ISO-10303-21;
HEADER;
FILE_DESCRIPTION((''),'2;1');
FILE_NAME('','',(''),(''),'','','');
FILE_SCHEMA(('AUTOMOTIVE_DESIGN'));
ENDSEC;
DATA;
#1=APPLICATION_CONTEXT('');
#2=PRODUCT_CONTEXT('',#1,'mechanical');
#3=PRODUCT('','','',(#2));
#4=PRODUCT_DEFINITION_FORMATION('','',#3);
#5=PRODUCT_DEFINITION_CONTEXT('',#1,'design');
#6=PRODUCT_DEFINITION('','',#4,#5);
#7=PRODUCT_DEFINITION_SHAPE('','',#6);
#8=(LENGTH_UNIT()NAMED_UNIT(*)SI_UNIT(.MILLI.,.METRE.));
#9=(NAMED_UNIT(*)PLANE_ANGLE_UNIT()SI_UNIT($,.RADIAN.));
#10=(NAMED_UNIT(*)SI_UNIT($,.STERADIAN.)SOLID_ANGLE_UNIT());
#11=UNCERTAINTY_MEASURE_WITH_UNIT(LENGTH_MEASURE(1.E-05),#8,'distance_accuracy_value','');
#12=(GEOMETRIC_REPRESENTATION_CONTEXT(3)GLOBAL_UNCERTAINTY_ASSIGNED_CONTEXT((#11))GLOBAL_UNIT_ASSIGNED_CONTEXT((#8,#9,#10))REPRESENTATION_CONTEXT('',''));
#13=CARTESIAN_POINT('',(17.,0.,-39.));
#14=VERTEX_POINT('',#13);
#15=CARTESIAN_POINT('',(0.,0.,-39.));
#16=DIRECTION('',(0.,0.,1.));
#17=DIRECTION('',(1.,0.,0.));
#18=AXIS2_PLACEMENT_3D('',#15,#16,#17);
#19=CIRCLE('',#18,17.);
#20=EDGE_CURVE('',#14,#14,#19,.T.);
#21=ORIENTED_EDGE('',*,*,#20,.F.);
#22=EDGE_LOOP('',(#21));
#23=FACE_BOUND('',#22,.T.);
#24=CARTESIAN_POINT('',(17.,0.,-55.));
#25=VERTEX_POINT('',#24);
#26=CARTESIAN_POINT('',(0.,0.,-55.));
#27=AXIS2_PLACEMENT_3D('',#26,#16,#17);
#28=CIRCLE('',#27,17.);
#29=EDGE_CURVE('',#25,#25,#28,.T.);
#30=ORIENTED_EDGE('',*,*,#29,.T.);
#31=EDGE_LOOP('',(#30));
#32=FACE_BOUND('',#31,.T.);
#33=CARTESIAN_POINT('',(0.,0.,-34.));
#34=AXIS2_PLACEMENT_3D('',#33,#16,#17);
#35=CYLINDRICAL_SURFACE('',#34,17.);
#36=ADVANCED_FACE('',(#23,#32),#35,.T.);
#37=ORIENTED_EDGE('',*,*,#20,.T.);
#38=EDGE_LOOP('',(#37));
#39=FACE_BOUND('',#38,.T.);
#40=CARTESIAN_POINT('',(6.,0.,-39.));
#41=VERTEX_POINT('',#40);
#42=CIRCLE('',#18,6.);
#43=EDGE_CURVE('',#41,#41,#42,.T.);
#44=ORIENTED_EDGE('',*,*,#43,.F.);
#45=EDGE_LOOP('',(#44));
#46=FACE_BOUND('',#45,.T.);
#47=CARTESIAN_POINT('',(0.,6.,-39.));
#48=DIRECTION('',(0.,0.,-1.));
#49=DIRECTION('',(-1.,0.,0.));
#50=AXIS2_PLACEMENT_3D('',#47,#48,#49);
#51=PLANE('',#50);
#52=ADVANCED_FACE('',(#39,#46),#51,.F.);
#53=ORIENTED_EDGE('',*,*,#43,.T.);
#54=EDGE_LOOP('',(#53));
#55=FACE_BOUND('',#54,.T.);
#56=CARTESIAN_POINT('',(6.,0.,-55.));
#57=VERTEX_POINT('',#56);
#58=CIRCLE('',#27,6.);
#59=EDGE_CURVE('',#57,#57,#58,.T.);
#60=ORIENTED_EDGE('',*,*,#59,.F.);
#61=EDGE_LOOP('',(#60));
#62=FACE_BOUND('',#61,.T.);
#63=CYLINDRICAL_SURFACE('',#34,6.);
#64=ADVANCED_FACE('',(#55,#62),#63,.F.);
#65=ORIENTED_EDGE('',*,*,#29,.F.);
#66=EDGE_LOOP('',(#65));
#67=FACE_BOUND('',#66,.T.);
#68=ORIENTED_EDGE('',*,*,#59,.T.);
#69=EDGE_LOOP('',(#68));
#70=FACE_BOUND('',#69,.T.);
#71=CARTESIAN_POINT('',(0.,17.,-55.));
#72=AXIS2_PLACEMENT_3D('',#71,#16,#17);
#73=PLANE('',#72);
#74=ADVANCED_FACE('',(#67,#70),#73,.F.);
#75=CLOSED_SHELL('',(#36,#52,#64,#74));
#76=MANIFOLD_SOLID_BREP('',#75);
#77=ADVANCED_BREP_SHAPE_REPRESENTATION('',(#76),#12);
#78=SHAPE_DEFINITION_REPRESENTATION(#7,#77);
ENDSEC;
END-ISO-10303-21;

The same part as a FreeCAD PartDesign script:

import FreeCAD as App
import Part
import Sketcher

doc = App.newDocument("Part")
body = doc.addObject("PartDesign::Body", "Body")

# Sketch on YZ plane
sketch1 = body.newObject("Sketcher::SketchObject", "Sketch")
sketch1.AttachmentSupport = (doc.getObject("YZ_Plane"), [""])
sketch1.MapMode = "FlatFace"
sketch1.addGeometry([
    Part.LineSegment(App.Vector(17, -39, 0), App.Vector(6, -39, 0)),
    Part.LineSegment(App.Vector(6, -39, 0), App.Vector(6, -55, 0)),
    Part.LineSegment(App.Vector(6, -55, 0), App.Vector(17, -55, 0)),
    Part.LineSegment(App.Vector(17, -55, 0), App.Vector(17, -39, 0)),
], False)
sketch1.addConstraint([
    Sketcher.Constraint("Coincident", 0, 2, 1, 1),
    Sketcher.Constraint("Coincident", 1, 2, 2, 1),
    Sketcher.Constraint("Coincident", 2, 2, 3, 1),
    Sketcher.Constraint("Coincident", 3, 2, 0, 1),
    Sketcher.Constraint("Horizontal", 0),
    Sketcher.Constraint("Vertical", 1),
    Sketcher.Constraint("Horizontal", 2),
    Sketcher.Constraint("Vertical", 3),
    Sketcher.Constraint("DistanceX", 0, 2, 0, 1, 11.0),
    Sketcher.Constraint("DistanceY", 1, 2, 1, 1, 16.0),
    Sketcher.Constraint("DistanceX", -1, 1, 0, 2, 6.0),
    Sketcher.Constraint("DistanceY", 0, 2, -1, 1, 39.0),
])
revolution = body.newObject("PartDesign::Revolution", "Revolution")
revolution.Profile = sketch1
revolution.ReferenceAxis = (sketch1, ["V_Axis"])
revolution.Angle = 360

doc.recompute()
